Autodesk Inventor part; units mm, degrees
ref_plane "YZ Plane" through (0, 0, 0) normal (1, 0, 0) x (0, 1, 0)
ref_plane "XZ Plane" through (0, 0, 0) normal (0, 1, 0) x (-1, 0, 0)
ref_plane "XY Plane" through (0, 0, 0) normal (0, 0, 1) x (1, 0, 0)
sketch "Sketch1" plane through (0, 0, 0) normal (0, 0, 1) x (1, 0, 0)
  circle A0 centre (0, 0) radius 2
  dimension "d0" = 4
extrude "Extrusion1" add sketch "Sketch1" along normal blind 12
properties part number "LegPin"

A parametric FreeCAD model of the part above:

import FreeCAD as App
import Part
import Sketcher

V = App.Vector
Q = App.Units.Quantity

doc = App.newDocument("Part")
body = doc.addObject("PartDesign::Body", "Body")

sketch1 = doc.addObject("Sketcher::SketchObject", "Sketch")
body.addObject(sketch1)
sketch1.AttachmentSupport = (doc.XY_Plane, [""])
sketch1.MapMode = "FlatFace"
sketch1.addGeometry(Part.Circle(V(0, 0, 0), V(0, 0, 1), 2), False)
sketch1.addConstraint([
    Sketcher.Constraint("Coincident", 0, 3, -1, 1),
    Sketcher.Constraint("Diameter", 0, Q("4 mm")),
])
pad1 = doc.addObject("PartDesign::Pad", "Pad")
body.addObject(pad1)
pad1.Profile = sketch1
pad1.Length = 12

doc.recompute()
